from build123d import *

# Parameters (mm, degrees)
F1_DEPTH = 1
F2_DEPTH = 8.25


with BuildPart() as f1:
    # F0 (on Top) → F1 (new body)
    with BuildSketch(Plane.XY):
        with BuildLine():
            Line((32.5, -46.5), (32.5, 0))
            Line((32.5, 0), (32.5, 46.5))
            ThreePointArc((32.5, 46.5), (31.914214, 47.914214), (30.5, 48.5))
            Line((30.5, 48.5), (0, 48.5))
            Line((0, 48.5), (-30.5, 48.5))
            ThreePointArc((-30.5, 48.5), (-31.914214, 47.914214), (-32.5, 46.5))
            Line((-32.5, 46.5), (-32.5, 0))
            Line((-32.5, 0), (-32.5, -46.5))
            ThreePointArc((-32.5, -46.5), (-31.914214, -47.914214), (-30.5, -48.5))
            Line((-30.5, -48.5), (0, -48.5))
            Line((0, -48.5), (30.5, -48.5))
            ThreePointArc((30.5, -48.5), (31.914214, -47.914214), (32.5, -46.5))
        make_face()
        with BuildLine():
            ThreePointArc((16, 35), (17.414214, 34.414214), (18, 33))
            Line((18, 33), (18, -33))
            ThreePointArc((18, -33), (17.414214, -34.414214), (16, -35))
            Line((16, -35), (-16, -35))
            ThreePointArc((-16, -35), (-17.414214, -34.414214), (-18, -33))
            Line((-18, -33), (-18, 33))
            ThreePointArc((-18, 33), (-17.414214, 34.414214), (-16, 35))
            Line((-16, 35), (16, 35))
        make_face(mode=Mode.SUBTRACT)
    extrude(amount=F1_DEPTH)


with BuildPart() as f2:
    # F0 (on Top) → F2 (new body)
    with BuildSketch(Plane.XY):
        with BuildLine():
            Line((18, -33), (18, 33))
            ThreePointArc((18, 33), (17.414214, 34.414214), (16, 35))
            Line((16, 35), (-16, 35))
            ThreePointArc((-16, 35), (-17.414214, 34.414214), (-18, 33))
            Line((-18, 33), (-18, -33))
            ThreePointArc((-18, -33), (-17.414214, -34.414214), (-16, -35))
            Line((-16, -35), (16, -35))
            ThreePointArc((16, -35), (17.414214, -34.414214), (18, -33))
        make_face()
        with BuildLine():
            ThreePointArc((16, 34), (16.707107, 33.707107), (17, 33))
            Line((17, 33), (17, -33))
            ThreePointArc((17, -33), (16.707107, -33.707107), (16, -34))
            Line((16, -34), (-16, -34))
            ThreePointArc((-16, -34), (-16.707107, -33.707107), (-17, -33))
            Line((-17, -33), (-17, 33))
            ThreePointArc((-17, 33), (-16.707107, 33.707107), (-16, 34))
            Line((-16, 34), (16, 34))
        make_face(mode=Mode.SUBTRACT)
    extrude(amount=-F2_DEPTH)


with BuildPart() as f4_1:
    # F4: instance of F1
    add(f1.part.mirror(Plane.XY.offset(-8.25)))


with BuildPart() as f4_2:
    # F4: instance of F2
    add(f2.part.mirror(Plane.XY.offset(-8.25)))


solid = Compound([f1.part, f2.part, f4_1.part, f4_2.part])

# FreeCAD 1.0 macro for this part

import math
import FreeCAD as App
import Part
import Sketcher

doc = App.newDocument("Part")
body = doc.addObject("PartDesign::Body", "Body")

# Sketch on XY plane
sketch1 = doc.addObject("Sketcher::SketchObject", "Sketch")
body.addObject(sketch1)
sketch1.AttachmentSupport = (doc.XY_Plane, [""])
sketch1.MapMode = "FlatFace"
sketch1.addGeometry(Part.LineSegment(App.Vector(32.5, -46.5, 0), App.Vector(32.5, 46.5, 0)), False)
sketch1.addGeometry(Part.ArcOfCircle(Part.Circle(App.Vector(30.500001, 46.500001, 0), App.Vector(0, 0, 1), 1.999999), math.radians(-0.000043), math.radians(90.000043)), False)
sketch1.addGeometry(Part.LineSegment(App.Vector(30.5, 48.5, 0), App.Vector(-30.5, 48.5, 0)), False)
sketch1.addGeometry(Part.ArcOfCircle(Part.Circle(App.Vector(-30.500001, 46.500001, 0), App.Vector(0, 0, 1), 1.999999), math.radians(89.999957), math.radians(180.000043)), False)
sketch1.addGeometry(Part.LineSegment(App.Vector(-32.5, 46.5, 0), App.Vector(-32.5, -46.5, 0)), False)
sketch1.addGeometry(Part.ArcOfCircle(Part.Circle(App.Vector(-30.500001, -46.500001, 0), App.Vector(0, 0, 1), 1.999999), math.radians(179.999957), math.radians(270.000043)), False)
sketch1.addGeometry(Part.LineSegment(App.Vector(-30.5, -48.5, 0), App.Vector(30.5, -48.5, 0)), False)
sketch1.addGeometry(Part.ArcOfCircle(Part.Circle(App.Vector(30.500001, -46.500001, 0), App.Vector(0, 0, 1), 1.999999), math.radians(-90.000043), math.radians(0.000043)), False)
sketch1.addGeometry(Part.LineSegment(App.Vector(-16, 35, 0), App.Vector(16, 35, 0)), False)
sketch1.addGeometry(Part.ArcOfCircle(Part.Circle(App.Vector(16.000001, 33.000001, 0), App.Vector(0, 0, 1), 1.999999), math.radians(-0.000043), math.radians(90.000043)), False)
sketch1.addGeometry(Part.LineSegment(App.Vector(18, 33, 0), App.Vector(18, -33, 0)), False)
sketch1.addGeometry(Part.ArcOfCircle(Part.Circle(App.Vector(16.000001, -33.000001, 0), App.Vector(0, 0, 1), 1.999999), math.radians(-90.000043), math.radians(0.000043)), False)
sketch1.addGeometry(Part.LineSegment(App.Vector(16, -35, 0), App.Vector(-16, -35, 0)), False)
sketch1.addGeometry(Part.ArcOfCircle(Part.Circle(App.Vector(-16.000001, -33.000001, 0), App.Vector(0, 0, 1), 1.999999), math.radians(179.999957), math.radians(270.000043)), False)
sketch1.addGeometry(Part.LineSegment(App.Vector(-18, -33, 0), App.Vector(-18, 33, 0)), False)
sketch1.addGeometry(Part.ArcOfCircle(Part.Circle(App.Vector(-16.000001, 33.000001, 0), App.Vector(0, 0, 1), 1.999999), math.radians(89.999957), math.radians(180.000043)), False)
sketch1.addConstraint(Sketcher.Constraint("Tangent", 0, 2, 1, 1))
sketch1.addConstraint(Sketcher.Constraint("Tangent", 1, 2, 2, 1))
sketch1.addConstraint(Sketcher.Constraint("Tangent", 2, 2, 3, 1))
sketch1.addConstraint(Sketcher.Constraint("Tangent", 3, 2, 4, 1))
sketch1.addConstraint(Sketcher.Constraint("Tangent", 4, 2, 5, 1))
sketch1.addConstraint(Sketcher.Constraint("Tangent", 5, 2, 6, 1))
sketch1.addConstraint(Sketcher.Constraint("Tangent", 6, 2, 7, 1))
sketch1.addConstraint(Sketcher.Constraint("Tangent", 7, 2, 0, 1))
sketch1.addConstraint(Sketcher.Constraint("Tangent", 8, 2, 9, 2))
sketch1.addConstraint(Sketcher.Constraint("Tangent", 9, 1, 10, 1))
sketch1.addConstraint(Sketcher.Constraint("Tangent", 10, 2, 11, 2))
sketch1.addConstraint(Sketcher.Constraint("Tangent", 11, 1, 12, 1))
sketch1.addConstraint(Sketcher.Constraint("Tangent", 12, 2, 13, 2))
sketch1.addConstraint(Sketcher.Constraint("Tangent", 13, 1, 14, 1))
sketch1.addConstraint(Sketcher.Constraint("Tangent", 14, 2, 15, 2))
sketch1.addConstraint(Sketcher.Constraint("Tangent", 15, 1, 8, 1))
sketch1.addConstraint(Sketcher.Constraint("Vertical", 0))
sketch1.addConstraint(Sketcher.Constraint("Horizontal", 2))
sketch1.addConstraint(Sketcher.Constraint("Vertical", 4))
sketch1.addConstraint(Sketcher.Constraint("Horizontal", 6))
sketch1.addConstraint(Sketcher.Constraint("Horizontal", 8))
sketch1.addConstraint(Sketcher.Constraint("Vertical", 10))
sketch1.addConstraint(Sketcher.Constraint("Horizontal", 12))
sketch1.addConstraint(Sketcher.Constraint("Vertical", 14))
sketch1.addConstraint(Sketcher.Constraint("Equal", 1, 3))
sketch1.addConstraint(Sketcher.Constraint("Equal", 3, 5))
sketch1.addConstraint(Sketcher.Constraint("Equal", 5, 7))
sketch1.addConstraint(Sketcher.Constraint("Equal", 7, 9))
sketch1.addConstraint(Sketcher.Constraint("Equal", 9, 11))
sketch1.addConstraint(Sketcher.Constraint("Equal", 11, 13))
sketch1.addConstraint(Sketcher.Constraint("Equal", 13, 15))
sketch1.addConstraint(Sketcher.Constraint("Symmetric", 1, 3, 5, 3, -1, 1))
sketch1.addConstraint(Sketcher.Constraint("Symmetric", 9, 3, 13, 3, -1, 1))
sketch1.addConstraint(Sketcher.Constraint("Radius", 1, 1.999999))
sketch1.addConstraint(Sketcher.Constraint("DistanceX", 2, 2, 2, 1, 61.0))
sketch1.addConstraint(Sketcher.Constraint("DistanceX", 8, 1, 8, 2, 32.0))
sketch1.addConstraint(Sketcher.Constraint("DistanceY", 0, 1, 0, 2, 93.0))
sketch1.addConstraint(Sketcher.Constraint("DistanceY", 10, 2, 10, 1, 66.0))
pad1 = doc.addObject("PartDesign::Pad", "Pad")
body.addObject(pad1)
pad1.Profile = sketch1
pad1.Length = 1
body2 = doc.addObject("PartDesign::Body", "Body001")

# Sketch on XY plane
sketch2 = doc.addObject("Sketcher::SketchObject", "Sketch001")
body2.addObject(sketch2)
sketch2.AttachmentSupport = (doc.getObject("XY_Plane001"), [""])
sketch2.MapMode = "FlatFace"
sketch2.addGeometry(Part.LineSegment(App.Vector(18, -33, 0), App.Vector(18, 33, 0)), False)
sketch2.addGeometry(Part.ArcOfCircle(Part.Circle(App.Vector(16.000001, 33.000001, 0), App.Vector(0, 0, 1), 1.999999), math.radians(-0.000043), math.radians(90.000043)), False)
sketch2.addGeometry(Part.LineSegment(App.Vector(16, 35, 0), App.Vector(-16, 35, 0)), False)
sketch2.addGeometry(Part.ArcOfCircle(Part.Circle(App.Vector(-16.000001, 33.000001, 0), App.Vector(0, 0, 1), 1.999999), math.radians(89.999957), math.radians(180.000043)), False)
sketch2.addGeometry(Part.LineSegment(App.Vector(-18, 33, 0), App.Vector(-18, -33, 0)), False)
sketch2.addGeometry(Part.ArcOfCircle(Part.Circle(App.Vector(-16.000001, -33.000001, 0), App.Vector(0, 0, 1), 1.999999), math.radians(179.999957), math.radians(270.000043)), False)
sketch2.addGeometry(Part.LineSegment(App.Vector(-16, -35, 0), App.Vector(16, -35, 0)), False)
sketch2.addGeometry(Part.ArcOfCircle(Part.Circle(App.Vector(16.000001, -33.000001, 0), App.Vector(0, 0, 1), 1.999999), math.radians(-90.000043), math.radians(0.000043)), False)
sketch2.addGeometry(Part.LineSegment(App.Vector(-16, 34, 0), App.Vector(16, 34, 0)), False)
sketch2.addGeometry(Part.ArcOfCircle(Part.Circle(App.Vector(16.000001, 33.000001, 0), App.Vector(0, 0, 1), 0.999999), math.radians(-0.000043), math.radians(90.000043)), False)
sketch2.addGeometry(Part.LineSegment(App.Vector(17, 33, 0), App.Vector(17, -33, 0)), False)
sketch2.addGeometry(Part.ArcOfCircle(Part.Circle(App.Vector(16.000001, -33.000001, 0), App.Vector(0, 0, 1), 0.999999), math.radians(-90.000043), math.radians(0.000043)), False)
sketch2.addGeometry(Part.LineSegment(App.Vector(16, -34, 0), App.Vector(-16, -34, 0)), False)
sketch2.addGeometry(Part.ArcOfCircle(Part.Circle(App.Vector(-16.000001, -33.000001, 0), App.Vector(0, 0, 1), 0.999999), math.radians(179.999957), math.radians(270.000043)), False)
sketch2.addGeometry(Part.LineSegment(App.Vector(-17, -33, 0), App.Vector(-17, 33, 0)), False)
sketch2.addGeometry(Part.ArcOfCircle(Part.Circle(App.Vector(-16.000001, 33.000001, 0), App.Vector(0, 0, 1), 0.999999), math.radians(89.999957), math.radians(180.000043)), False)
sketch2.addConstraint(Sketcher.Constraint("Tangent", 0, 2, 1, 1))
sketch2.addConstraint(Sketcher.Constraint("Tangent", 1, 2, 2, 1))
sketch2.addConstraint(Sketcher.Constraint("Tangent", 2, 2, 3, 1))
sketch2.addConstraint(Sketcher.Constraint("Tangent", 3, 2, 4, 1))
sketch2.addConstraint(Sketcher.Constraint("Tangent", 4, 2, 5, 1))
sketch2.addConstraint(Sketcher.Constraint("Tangent", 5, 2, 6, 1))
sketch2.addConstraint(Sketcher.Constraint("Tangent", 6, 2, 7, 1))
sketch2.addConstraint(Sketcher.Constraint("Tangent", 7, 2, 0, 1))
sketch2.addConstraint(Sketcher.Constraint("Tangent", 8, 2, 9, 2))
sketch2.addConstraint(Sketcher.Constraint("Tangent", 9, 1, 10, 1))
sketch2.addConstraint(Sketcher.Constraint("Tangent", 10, 2, 11, 2))
sketch2.addConstraint(Sketcher.Constraint("Tangent", 11, 1, 12, 1))
sketch2.addConstraint(Sketcher.Constraint("Tangent", 12, 2, 13, 2))
sketch2.addConstraint(Sketcher.Constraint("Tangent", 13, 1, 14, 1))
sketch2.addConstraint(Sketcher.Constraint("Tangent", 14, 2, 15, 2))
sketch2.addConstraint(Sketcher.Constraint("Tangent", 15, 1, 8, 1))
sketch2.addConstraint(Sketcher.Constraint("Vertical", 0))
sketch2.addConstraint(Sketcher.Constraint("Horizontal", 2))
sketch2.addConstraint(Sketcher.Constraint("Vertical", 4))
sketch2.addConstraint(Sketcher.Constraint("Horizontal", 6))
sketch2.addConstraint(Sketcher.Constraint("Horizontal", 8))
sketch2.addConstraint(Sketcher.Constraint("Vertical", 10))
sketch2.addConstraint(Sketcher.Constraint("Horizontal", 12))
sketch2.addConstraint(Sketcher.Constraint("Vertical", 14))
sketch2.addConstraint(Sketcher.Constraint("Coincident", 9, 3, 1, 3))
sketch2.addConstraint(Sketcher.Constraint("Coincident", 11, 3, 7, 3))
sketch2.addConstraint(Sketcher.Constraint("Coincident", 13, 3, 5, 3))
sketch2.addConstraint(Sketcher.Constraint("Equal", 1, 3))
sketch2.addConstraint(Sketcher.Constraint("Equal", 3, 5))
sketch2.addConstraint(Sketcher.Constraint("Equal", 5, 7))
sketch2.addConstraint(Sketcher.Constraint("Equal", 13, 15))
sketch2.addConstraint(Sketcher.Constraint("Symmetric", 1, 3, 5, 3, -1, 1))
sketch2.addConstraint(Sketcher.Constraint("Radius", 1, 1.999999))
sketch2.addConstraint(Sketcher.Constraint("Radius", 9, 0.999999))
sketch2.addConstraint(Sketcher.Constraint("DistanceX", 2, 2, 2, 1, 32.0))
sketch2.addConstraint(Sketcher.Constraint("DistanceY", 0, 1, 0, 2, 66.0))
pad2 = doc.addObject("PartDesign::Pad", "Pad001")
body2.addObject(pad2)
pad2.Profile = sketch2
pad2.Length = 8.25
pad2.Reversed = True
body3 = doc.addObject("PartDesign::Body", "Body002")
doc.recompute()

mirroring = doc.addObject("Part::Mirroring", "Mirroring")
mirroring.Source = body
mirroring.Base = App.Vector(0, 0, -8.25)
mirroring.Normal = App.Vector(0, 0, 1)
body3.BaseFeature = mirroring
doc.recompute()
body4 = doc.addObject("PartDesign::Body", "Body003")
doc.recompute()

mirroring2 = doc.addObject("Part::Mirroring", "Mirroring001")
mirroring2.Source = body2
mirroring2.Base = App.Vector(0, 0, -8.25)
mirroring2.Normal = App.Vector(0, 0, 1)
body4.BaseFeature = mirroring2
doc.recompute()
mirroring.Visibility = False
mirroring2.Visibility = False

doc.recompute()
